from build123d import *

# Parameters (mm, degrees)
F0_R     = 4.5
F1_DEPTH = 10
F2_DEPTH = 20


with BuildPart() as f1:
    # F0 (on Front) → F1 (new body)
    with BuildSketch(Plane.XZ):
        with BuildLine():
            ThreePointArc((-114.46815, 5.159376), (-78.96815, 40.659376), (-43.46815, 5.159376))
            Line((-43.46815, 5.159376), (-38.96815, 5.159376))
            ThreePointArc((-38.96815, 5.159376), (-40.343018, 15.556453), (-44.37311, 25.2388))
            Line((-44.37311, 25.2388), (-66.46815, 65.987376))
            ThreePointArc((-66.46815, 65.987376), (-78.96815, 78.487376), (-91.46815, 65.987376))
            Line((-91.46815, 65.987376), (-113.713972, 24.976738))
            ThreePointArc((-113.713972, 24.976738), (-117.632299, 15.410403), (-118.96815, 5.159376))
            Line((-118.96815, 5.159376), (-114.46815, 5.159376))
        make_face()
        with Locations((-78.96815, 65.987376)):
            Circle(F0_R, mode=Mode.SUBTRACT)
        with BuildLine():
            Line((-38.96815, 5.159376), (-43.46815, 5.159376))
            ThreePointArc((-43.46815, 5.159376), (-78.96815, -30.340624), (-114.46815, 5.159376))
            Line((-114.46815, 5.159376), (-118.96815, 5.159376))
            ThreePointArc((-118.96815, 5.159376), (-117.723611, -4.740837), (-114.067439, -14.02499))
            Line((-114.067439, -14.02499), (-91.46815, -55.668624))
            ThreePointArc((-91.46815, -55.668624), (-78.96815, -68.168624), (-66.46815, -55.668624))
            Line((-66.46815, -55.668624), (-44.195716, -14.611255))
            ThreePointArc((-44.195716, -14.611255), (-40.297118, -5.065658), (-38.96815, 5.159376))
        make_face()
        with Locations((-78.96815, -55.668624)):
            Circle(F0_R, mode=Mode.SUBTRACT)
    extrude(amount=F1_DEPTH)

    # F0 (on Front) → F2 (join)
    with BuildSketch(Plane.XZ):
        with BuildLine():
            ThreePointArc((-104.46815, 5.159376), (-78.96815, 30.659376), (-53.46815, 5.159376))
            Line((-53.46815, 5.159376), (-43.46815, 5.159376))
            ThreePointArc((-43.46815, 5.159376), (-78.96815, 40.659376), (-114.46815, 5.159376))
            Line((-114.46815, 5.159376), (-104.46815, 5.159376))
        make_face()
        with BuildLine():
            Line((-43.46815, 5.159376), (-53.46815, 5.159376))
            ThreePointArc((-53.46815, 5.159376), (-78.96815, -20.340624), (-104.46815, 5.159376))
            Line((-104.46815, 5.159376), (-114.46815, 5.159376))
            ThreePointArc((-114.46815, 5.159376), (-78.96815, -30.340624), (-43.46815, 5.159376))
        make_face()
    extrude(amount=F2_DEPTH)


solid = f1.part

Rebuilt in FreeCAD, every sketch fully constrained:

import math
import FreeCAD as App
import Part
import Sketcher

doc = App.newDocument("Part")
params = doc.addObject("Spreadsheet::Sheet", "Params")
for row, (alias, value) in enumerate([
    ("sketch1_diameter", "9 mm"),
    ("sketch1_diameter2", "71 mm"),
    ("sketch1_diameter3", "9 mm"),
    ("sketch1_radius", "40 mm"),
    ("sketch1_radius2", "12.5 mm"),
    ("pad1_length", "10 mm"),
    ("sketch2_diameter", "71 mm"),
    ("sketch2_diameter2", "51 mm"),
    ("pad2_length", "20 mm"),
], start=1):
    params.set(f"A{row}", alias)
    params.set(f"B{row}", "=" + value)
    params.setAlias(f"B{row}", alias)

body = doc.addObject("PartDesign::Body", "Body")

sketch1 = body.newObject("Sketcher::SketchObject", "Sketch")
sketch1.AttachmentSupport = (doc.getObject("XZ_Plane"), [""])
sketch1.MapMode = "FlatFace"
sketch1.addGeometry(Part.ArcOfCircle(Part.Circle(App.Vector(-78.968143, 5.159374, 0), App.Vector(0, 0, 1), 40.000007), math.radians(150.301626), math.radians(179.999997)), False)
sketch1.addGeometry(Part.ArcOfCircle(Part.Circle(App.Vector(-78.968143, 5.159378, 0), App.Vector(0, 0, 1), 40.000007), math.radians(-179.999997), math.radians(-151.340124)), False)
sketch1.addGeometry(Part.LineSegment(App.Vector(-114.067439, -14.02499, 0), App.Vector(-91.46815, -55.668624, 0)), False)
sketch1.addGeometry(Part.ArcOfCircle(Part.Circle(App.Vector(-78.96815, -55.668624, 0), App.Vector(0, 0, 1), 12.5), math.radians(180), math.radians(360)), False)
sketch1.addGeometry(Part.LineSegment(App.Vector(-66.46815, -55.668624, 0), App.Vector(-44.195716, -14.611255, 0)), False)
sketch1.addGeometry(Part.ArcOfCircle(Part.Circle(App.Vector(-78.96814, 5.159373, 0), App.Vector(0, 0, 1), 39.99999), math.radians(-29.621349), math.radians(0.000004)), False)
sketch1.addGeometry(Part.ArcOfCircle(Part.Circle(App.Vector(-78.96815, 5.159378, 0), App.Vector(0, 0, 1), 40), math.radians(-0.000002), math.radians(30.131451)), False)
sketch1.addGeometry(Part.LineSegment(App.Vector(-44.37311, 25.2388, 0), App.Vector(-66.46815, 65.987376, 0)), False)
sketch1.addGeometry(Part.ArcOfCircle(Part.Circle(App.Vector(-78.96815, 65.987376, 0), App.Vector(0, 0, 1), 12.5), math.radians(0), math.radians(180)), False)
sketch1.addGeometry(Part.LineSegment(App.Vector(-91.46815, 65.987376, 0), App.Vector(-113.713972, 24.976738, 0)), False)
sketch1.addGeometry(Part.Circle(App.Vector(-78.96815, -55.668624, 0), App.Vector(0, 0, 1), 4.5), False)
sketch1.addGeometry(Part.Circle(App.Vector(-78.96815, 5.159376, 0), App.Vector(0, 0, 1), 35.5), False)
sketch1.addGeometry(Part.Circle(App.Vector(-78.96815, 65.987376, 0), App.Vector(0, 0, 1), 4.5), False)
sketch1.addConstraint(Sketcher.Constraint("Coincident", 0, 2, 1, 1))
sketch1.addConstraint(Sketcher.Constraint("Coincident", 1, 2, 2, 1))
sketch1.addConstraint(Sketcher.Constraint("Coincident", 2, 2, 3, 1))
sketch1.addConstraint(Sketcher.Constraint("Coincident", 3, 2, 4, 1))
sketch1.addConstraint(Sketcher.Constraint("Coincident", 4, 2, 5, 1))
sketch1.addConstraint(Sketcher.Constraint("Coincident", 5, 2, 6, 1))
sketch1.addConstraint(Sketcher.Constraint("Coincident", 6, 2, 7, 1))
sketch1.addConstraint(Sketcher.Constraint("Coincident", 7, 2, 8, 1))
sketch1.addConstraint(Sketcher.Constraint("Coincident", 8, 2, 9, 1))
sketch1.addConstraint(Sketcher.Constraint("Coincident", 9, 2, 0, 1))
sketch1.addConstraint(Sketcher.Constraint("Coincident", 1, 3, 0, 3))
sketch1.addConstraint(Sketcher.Constraint("Coincident", 5, 3, 0, 3))
sketch1.addConstraint(Sketcher.Constraint("Coincident", 6, 3, 0, 3))
sketch1.addConstraint(Sketcher.Constraint("Coincident", 10, 3, 3, 3))
sketch1.addConstraint(Sketcher.Constraint("Coincident", 11, 3, 0, 3))
sketch1.addConstraint(Sketcher.Constraint("Coincident", 12, 3, 8, 3))
sketch1.addConstraint(Sketcher.Constraint("Diameter", 10, 9.0))
sketch1.addConstraint(Sketcher.Constraint("Diameter", 11, 71.0))
sketch1.addConstraint(Sketcher.Constraint("Diameter", 12, 9.0))
sketch1.addConstraint(Sketcher.Constraint("Radius", 6, 40.0))
sketch1.addConstraint(Sketcher.Constraint("Radius", 3, 12.5))
sketch1.addConstraint(Sketcher.Constraint("Radius", 8, 12.5))
sketch1.addConstraint(Sketcher.Constraint("DistanceX", 0, 2, 11, 3, 40.0))
sketch1.addConstraint(Sketcher.Constraint("DistanceX", 6, 3, 7, 2, 12.5))
sketch1.addConstraint(Sketcher.Constraint("DistanceY", 3, 3, 6, 3, 60.828002))
sketch1.addConstraint(Sketcher.Constraint("DistanceY", 6, 3, 8, 3, 60.827998))
sketch1.addConstraint(Sketcher.Constraint("DistanceY", 6, 3, 7, 2, 60.827998))
sketch1.addConstraint(Sketcher.Constraint("DistanceY", 6, 3, 8, 2, 60.827998))
sketch1.addConstraint(Sketcher.Constraint("DistanceY", -1, 1, 6, 2, 25.2388))
sketch1.addConstraint(Sketcher.Constraint("DistanceX", 1, 2, 5, 3, 35.099299))
sketch1.addConstraint(Sketcher.Constraint("Distance", 4, 46.709409))
sketch1.addConstraint(Sketcher.Constraint("DistanceY", -1, 1, 1, 3, 5.159378))
sketch1.addConstraint(Sketcher.Constraint("DistanceX", 3, 3, -1, 1, 78.96815))
sketch1.addConstraint(Sketcher.Constraint("DistanceX", 5, 3, -1, 1, 78.96814))
sketch1.addConstraint(Sketcher.Constraint("DistanceX", 9, 2, -1, 1, 113.713972))
sketch1.addConstraint(Sketcher.Constraint("DistanceY", 4, 2, 0, 3, 19.770629))
sketch1.addConstraint(Sketcher.Constraint("DistanceY", 4, 2, 5, 2, 19.770631))
sketch1.addConstraint(Sketcher.Constraint("DistanceY", 0, 2, 9, 2, 19.817362))
sketch1.addConstraint(Sketcher.Constraint("Distance", 2, 47.380588))
sketch1.setExpression("Constraints[16]", "Params.sketch1_diameter")
sketch1.setExpression("Constraints[17]", "Params.sketch1_diameter2")
sketch1.setExpression("Constraints[18]", "Params.sketch1_diameter3")
sketch1.setExpression("Constraints[19]", "Params.sketch1_radius")
sketch1.setExpression("Constraints[20]", "Params.sketch1_radius2")
pad1 = body.newObject("PartDesign::Pad", "Pad")
pad1.Profile = sketch1
pad1.setExpression("Length", "Params.pad1_length")

sketch2 = body.newObject("Sketcher::SketchObject", "Sketch001")
sketch2.AttachmentSupport = (doc.getObject("XZ_Plane"), [""])
sketch2.MapMode = "FlatFace"
sketch2.addGeometry(Part.Circle(App.Vector(-78.96815, 5.159376, 0), App.Vector(0, 0, 1), 35.5), False)
sketch2.addGeometry(Part.Circle(App.Vector(-78.96815, 5.159376, 0), App.Vector(0, 0, 1), 25.5), False)
sketch2.addConstraint(Sketcher.Constraint("Coincident", 1, 3, 0, 3))
sketch2.addConstraint(Sketcher.Constraint("Diameter", 0, 71.0))
sketch2.addConstraint(Sketcher.Constraint("Diameter", 1, 51.0))
sketch2.addConstraint(Sketcher.Constraint("DistanceX", 0, 3, -1, 1, 78.96815))
sketch2.addConstraint(Sketcher.Constraint("DistanceY", -1, 1, 0, 3, 5.159376))
sketch2.setExpression("Constraints[1]", "Params.sketch2_diameter")
sketch2.setExpression("Constraints[2]", "Params.sketch2_diameter2")
pad2 = body.newObject("PartDesign::Pad", "Pad001")
pad2.Profile = sketch2
pad2.setExpression("Length", "Params.pad2_length")

doc.recompute()
